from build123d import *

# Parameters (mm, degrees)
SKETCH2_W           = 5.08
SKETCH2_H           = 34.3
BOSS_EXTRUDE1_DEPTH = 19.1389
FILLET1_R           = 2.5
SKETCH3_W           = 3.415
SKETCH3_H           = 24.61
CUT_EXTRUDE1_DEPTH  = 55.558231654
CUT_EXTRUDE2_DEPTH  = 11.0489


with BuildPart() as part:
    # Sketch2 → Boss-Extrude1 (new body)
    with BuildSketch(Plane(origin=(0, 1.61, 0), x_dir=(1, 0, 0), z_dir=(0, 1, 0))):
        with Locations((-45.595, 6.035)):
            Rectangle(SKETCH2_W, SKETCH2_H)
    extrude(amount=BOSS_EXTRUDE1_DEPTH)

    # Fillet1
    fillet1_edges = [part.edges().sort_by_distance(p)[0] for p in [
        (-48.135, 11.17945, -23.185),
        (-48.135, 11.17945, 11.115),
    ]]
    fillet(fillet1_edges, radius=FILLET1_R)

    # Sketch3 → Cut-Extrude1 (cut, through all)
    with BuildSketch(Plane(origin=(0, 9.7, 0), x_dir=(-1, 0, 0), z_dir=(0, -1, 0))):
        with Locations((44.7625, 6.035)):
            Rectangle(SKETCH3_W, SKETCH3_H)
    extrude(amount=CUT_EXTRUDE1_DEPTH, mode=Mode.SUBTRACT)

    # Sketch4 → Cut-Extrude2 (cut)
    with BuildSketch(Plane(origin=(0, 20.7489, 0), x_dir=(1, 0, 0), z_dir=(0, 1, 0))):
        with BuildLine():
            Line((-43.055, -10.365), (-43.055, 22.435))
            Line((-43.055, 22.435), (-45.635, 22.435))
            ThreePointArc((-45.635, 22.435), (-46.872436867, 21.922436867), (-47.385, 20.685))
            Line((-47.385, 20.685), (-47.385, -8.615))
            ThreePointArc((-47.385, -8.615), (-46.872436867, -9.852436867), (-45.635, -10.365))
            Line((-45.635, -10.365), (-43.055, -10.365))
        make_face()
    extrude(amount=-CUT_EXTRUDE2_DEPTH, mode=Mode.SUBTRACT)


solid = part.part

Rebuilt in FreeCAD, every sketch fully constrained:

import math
import FreeCAD as App
import Part
import Sketcher
from FreeCAD import Vector


def edges_at(feature, points):
    """Names of the edges that pass closest to the given points."""
    edges = feature.Shape.Edges
    near = lambda p: min(range(len(edges)), key=lambda i: edges[i].distToShape(Part.Vertex(*p))[0])
    return sorted({f"Edge{near(p) + 1}" for p in points})


def add_polygon(sketch, points):
    """Adds a closed chain of lines whose ends are joined by coincident constraints."""
    first, n = sketch.GeometryCount, len(points)
    for a, b in zip(points, points[1:] + points[:1]):
        sketch.addGeometry(Part.LineSegment(App.Vector(*a, 0), App.Vector(*b, 0)), False)
    for i in range(n):
        sketch.addConstraint(Sketcher.Constraint("Coincident", first + i, 2, first + (i + 1) % n, 1))

doc = App.newDocument("Part")
params = doc.addObject("Spreadsheet::Sheet", "Params")
for row, (alias, value) in enumerate([
    ("sketch1_height", "34.3 mm"),
    ("sketch1_width", "5.08 mm"),
    ("pad1_length", "19.1389 mm"),
    ("fillet_radius", "2.5 mm"),
    ("sketch2_height", "24.61 mm"),
    ("sketch3_radius", "1.75 mm"),
    ("sketch3_height", "32.8 mm"),
    ("sketch3_width", "2.58 mm"),
    ("pocket2_length", "11.0489 mm"),
], start=1):
    params.set(f"A{row}", alias)
    params.set(f"B{row}", "=" + value)
    params.setAlias(f"B{row}", alias)

body = doc.addObject("PartDesign::Body", "Body")

# Sketch on XZ plane
sketch1 = body.newObject("Sketcher::SketchObject", "Sketch")
sketch1.AttachmentSupport = (doc.getObject("XZ_Plane"), [""])
sketch1.MapMode = "FlatFace"
sketch1.AttachmentOffset = App.Placement(Vector(0, 0, -1.61), App.Rotation())
add_polygon(sketch1, [(-48.135, -23.185), (-48.135, 11.115), (-43.055, 11.115), (-43.055, -23.185)])  # lines 0-3
sketch1.addConstraint([
    Sketcher.Constraint("Vertical", 0),
    Sketcher.Constraint("Horizontal", 1),
    Sketcher.Constraint("Vertical", 2),
    Sketcher.Constraint("Horizontal", 3),
    Sketcher.Constraint("DistanceY", 0, 1, 0, 2, 34.3),
    Sketcher.Constraint("DistanceX", 1, 1, 1, 2, 5.08),
    Sketcher.Constraint("DistanceX", 0, 2, -1, 1, 48.135),
    Sketcher.Constraint("DistanceY", -1, 1, 0, 2, 11.115),
])
sketch1.setExpression("Constraints[8]", "Params.sketch1_height")
sketch1.setExpression("Constraints[9]", "Params.sketch1_width")
pad1 = body.newObject("PartDesign::Pad", "Pad")
pad1.Profile = sketch1
pad1.setExpression("Length", "Params.pad1_length")
pad1.Reversed = True
doc.recompute()

fillet = body.newObject("PartDesign::Fillet", "Fillet")
fillet.Base = (pad1, edges_at(pad1, [(-48.135, 11.179, -23.185), (-48.135, 11.179, 11.115)]))
fillet.setExpression("Radius", "Params.fillet_radius")

# Sketch on XZ plane
sketch2 = body.newObject("Sketcher::SketchObject", "Sketch001")
sketch2.AttachmentSupport = (doc.getObject("XZ_Plane"), [""])
sketch2.MapMode = "FlatFace"
sketch2.AttachmentOffset = App.Placement(Vector(0, 0, -9.7), App.Rotation())
add_polygon(sketch2, [(-43.055, -18.34), (-43.055, 6.27), (-46.47, 6.27), (-46.47, -18.34)])  # lines 0-3
sketch2.addConstraint([
    Sketcher.Constraint("Vertical", 0),
    Sketcher.Constraint("Horizontal", 1),
    Sketcher.Constraint("Vertical", 2),
    Sketcher.Constraint("Horizontal", 3),
    Sketcher.Constraint("DistanceY", 0, 1, 0, 2, 24.61),
    Sketcher.Constraint("DistanceX", 1, 2, 1, 1, 3.415),
    Sketcher.Constraint("DistanceY", -1, 1, 0, 2, 6.27),
    Sketcher.Constraint("DistanceX", 1, 2, -1, 1, 46.47),
])
sketch2.setExpression("Constraints[8]", "Params.sketch2_height")
pocket1 = body.newObject("PartDesign::Pocket", "Pocket")
pocket1.Profile = sketch2
pocket1.Type = "ThroughAll"
pocket1.Reversed = True

# Sketch on XZ plane
sketch3 = body.newObject("Sketcher::SketchObject", "Sketch002")
sketch3.AttachmentSupport = (doc.getObject("XZ_Plane"), [""])
sketch3.MapMode = "FlatFace"
sketch3.AttachmentOffset = App.Placement(Vector(0, 0, -20.7489), App.Rotation())
sketch3.addGeometry([
    Part.LineSegment(Vector(-43.055, 10.365, 0), Vector(-43.055, -22.435, 0)),  # 0
    Part.LineSegment(Vector(-43.055, -22.435, 0), Vector(-45.635, -22.435, 0)),  # 1
    Part.ArcOfCircle(Part.Circle(Vector(-45.635, -20.685, 0), Vector(0, 0, 1), 1.75), math.radians(180), math.radians(270)),  # 2
    Part.LineSegment(Vector(-47.385, -20.685, 0), Vector(-47.385, 8.615, 0)),  # 3
    Part.ArcOfCircle(Part.Circle(Vector(-45.635, 8.615, 0), Vector(0, 0, 1), 1.75), math.radians(90), math.radians(180)),  # 4
    Part.LineSegment(Vector(-45.635, 10.365, 0), Vector(-43.055, 10.365, 0)),  # 5
], False)
sketch3.addConstraint([
    Sketcher.Constraint("Coincident", 0, 2, 1, 1),
    Sketcher.Constraint("Tangent", 1, 2, 2, 2),
    Sketcher.Constraint("Tangent", 2, 1, 3, 1),
    Sketcher.Constraint("Tangent", 3, 2, 4, 2),
    Sketcher.Constraint("Tangent", 4, 1, 5, 1),
    Sketcher.Constraint("Coincident", 5, 2, 0, 1),
    Sketcher.Constraint("Vertical", 0),
    Sketcher.Constraint("Horizontal", 1),
    Sketcher.Constraint("Vertical", 3),
    Sketcher.Constraint("Horizontal", 5),
    Sketcher.Constraint("Equal", 2, 4),
    Sketcher.Constraint("Radius", 2, 1.75),
    Sketcher.Constraint("DistanceY", 0, 2, 0, 1, 32.8),
    Sketcher.Constraint("DistanceX", 1, 2, 1, 1, 2.58),
    Sketcher.Constraint("DistanceX", 2, 3, -1, 1, 45.635),
    Sketcher.Constraint("DistanceY", 2, 3, -1, 1, 20.685),
])
sketch3.setExpression("Constraints[11]", "Params.sketch3_radius")
sketch3.setExpression("Constraints[12]", "Params.sketch3_height")
sketch3.setExpression("Constraints[13]", "Params.sketch3_width")
pocket2 = body.newObject("PartDesign::Pocket", "Pocket001")
pocket2.Profile = sketch3
pocket2.setExpression("Length", "Params.pocket2_length")
pocket2.Reversed = True

doc.recompute()
